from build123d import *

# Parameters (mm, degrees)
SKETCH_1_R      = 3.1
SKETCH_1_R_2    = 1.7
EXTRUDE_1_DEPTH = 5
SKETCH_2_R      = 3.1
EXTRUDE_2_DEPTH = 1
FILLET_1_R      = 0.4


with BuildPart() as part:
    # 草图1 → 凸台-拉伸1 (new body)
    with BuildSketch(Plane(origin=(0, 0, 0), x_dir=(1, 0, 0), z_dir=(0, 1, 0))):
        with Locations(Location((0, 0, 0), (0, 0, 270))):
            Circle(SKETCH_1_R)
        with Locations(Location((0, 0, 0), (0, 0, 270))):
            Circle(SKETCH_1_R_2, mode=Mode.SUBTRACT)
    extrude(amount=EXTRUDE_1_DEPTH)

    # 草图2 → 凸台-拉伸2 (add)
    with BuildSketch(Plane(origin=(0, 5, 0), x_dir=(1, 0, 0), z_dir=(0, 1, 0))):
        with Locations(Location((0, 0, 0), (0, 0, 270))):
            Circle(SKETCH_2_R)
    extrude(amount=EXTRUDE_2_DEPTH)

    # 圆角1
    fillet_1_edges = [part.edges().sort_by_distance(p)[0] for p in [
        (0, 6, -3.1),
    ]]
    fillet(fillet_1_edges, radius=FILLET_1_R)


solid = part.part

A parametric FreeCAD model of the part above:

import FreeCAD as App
import Part
import Sketcher
Q = App.Units.Quantity


def edges_at(feature, points):
    """Names of the edges that pass closest to the given points."""
    edges = feature.Shape.Edges
    near = lambda p: min(range(len(edges)), key=lambda i: edges[i].distToShape(Part.Vertex(*p))[0])
    return sorted({f"Edge{near(p) + 1}" for p in points})

doc = App.newDocument("Part")
body = doc.addObject("PartDesign::Body", "Body")

# Sketch on XZ plane
sketch1 = body.newObject("Sketcher::SketchObject", "Sketch")
sketch1.AttachmentSupport = (doc.getObject("XZ_Plane"), [""])
sketch1.MapMode = "FlatFace"
sketch1.addGeometry(Part.Circle(App.Vector(0, 0, 0), App.Vector(0, 0, 1), 3.1), False)
sketch1.addGeometry(Part.Circle(App.Vector(0, 0, 0), App.Vector(0, 0, 1), 1.7), False)
sketch1.addConstraint(Sketcher.Constraint("Coincident", 0, 3, -1, 1))
sketch1.addConstraint(Sketcher.Constraint("Coincident", 1, 3, -1, 1))
sketch1.addConstraint(Sketcher.Constraint("Diameter", 0, Q("6.2 mm")))
sketch1.addConstraint(Sketcher.Constraint("Diameter", 1, Q("3.4 mm")))
pad1 = body.newObject("PartDesign::Pad", "Pad")
pad1.Profile = sketch1
pad1.Length = 5
pad1.Reversed = True

# Sketch on XZ plane
sketch2 = body.newObject("Sketcher::SketchObject", "Sketch001")
sketch2.AttachmentSupport = (doc.getObject("XZ_Plane"), [""])
sketch2.MapMode = "FlatFace"
sketch2.AttachmentOffset = App.Placement(App.Vector(0, 0, -5), App.Rotation())
sketch2.addGeometry(Part.Circle(App.Vector(0, 0, 0), App.Vector(0, 0, 1), 3.1), False)
sketch2.addConstraint(Sketcher.Constraint("Coincident", 0, 3, -1, 1))
sketch2.addConstraint(Sketcher.Constraint("Diameter", 0, Q("6.2 mm")))
pad2 = body.newObject("PartDesign::Pad", "Pad001")
pad2.Profile = sketch2
pad2.Length = 1
pad2.Reversed = True
doc.recompute()

fillet = body.newObject("PartDesign::Fillet", "Fillet")
fillet.Base = (pad2, edges_at(pad2, [(0, 6, -3.1)]))
fillet.Radius = 0.4

doc.recompute()
